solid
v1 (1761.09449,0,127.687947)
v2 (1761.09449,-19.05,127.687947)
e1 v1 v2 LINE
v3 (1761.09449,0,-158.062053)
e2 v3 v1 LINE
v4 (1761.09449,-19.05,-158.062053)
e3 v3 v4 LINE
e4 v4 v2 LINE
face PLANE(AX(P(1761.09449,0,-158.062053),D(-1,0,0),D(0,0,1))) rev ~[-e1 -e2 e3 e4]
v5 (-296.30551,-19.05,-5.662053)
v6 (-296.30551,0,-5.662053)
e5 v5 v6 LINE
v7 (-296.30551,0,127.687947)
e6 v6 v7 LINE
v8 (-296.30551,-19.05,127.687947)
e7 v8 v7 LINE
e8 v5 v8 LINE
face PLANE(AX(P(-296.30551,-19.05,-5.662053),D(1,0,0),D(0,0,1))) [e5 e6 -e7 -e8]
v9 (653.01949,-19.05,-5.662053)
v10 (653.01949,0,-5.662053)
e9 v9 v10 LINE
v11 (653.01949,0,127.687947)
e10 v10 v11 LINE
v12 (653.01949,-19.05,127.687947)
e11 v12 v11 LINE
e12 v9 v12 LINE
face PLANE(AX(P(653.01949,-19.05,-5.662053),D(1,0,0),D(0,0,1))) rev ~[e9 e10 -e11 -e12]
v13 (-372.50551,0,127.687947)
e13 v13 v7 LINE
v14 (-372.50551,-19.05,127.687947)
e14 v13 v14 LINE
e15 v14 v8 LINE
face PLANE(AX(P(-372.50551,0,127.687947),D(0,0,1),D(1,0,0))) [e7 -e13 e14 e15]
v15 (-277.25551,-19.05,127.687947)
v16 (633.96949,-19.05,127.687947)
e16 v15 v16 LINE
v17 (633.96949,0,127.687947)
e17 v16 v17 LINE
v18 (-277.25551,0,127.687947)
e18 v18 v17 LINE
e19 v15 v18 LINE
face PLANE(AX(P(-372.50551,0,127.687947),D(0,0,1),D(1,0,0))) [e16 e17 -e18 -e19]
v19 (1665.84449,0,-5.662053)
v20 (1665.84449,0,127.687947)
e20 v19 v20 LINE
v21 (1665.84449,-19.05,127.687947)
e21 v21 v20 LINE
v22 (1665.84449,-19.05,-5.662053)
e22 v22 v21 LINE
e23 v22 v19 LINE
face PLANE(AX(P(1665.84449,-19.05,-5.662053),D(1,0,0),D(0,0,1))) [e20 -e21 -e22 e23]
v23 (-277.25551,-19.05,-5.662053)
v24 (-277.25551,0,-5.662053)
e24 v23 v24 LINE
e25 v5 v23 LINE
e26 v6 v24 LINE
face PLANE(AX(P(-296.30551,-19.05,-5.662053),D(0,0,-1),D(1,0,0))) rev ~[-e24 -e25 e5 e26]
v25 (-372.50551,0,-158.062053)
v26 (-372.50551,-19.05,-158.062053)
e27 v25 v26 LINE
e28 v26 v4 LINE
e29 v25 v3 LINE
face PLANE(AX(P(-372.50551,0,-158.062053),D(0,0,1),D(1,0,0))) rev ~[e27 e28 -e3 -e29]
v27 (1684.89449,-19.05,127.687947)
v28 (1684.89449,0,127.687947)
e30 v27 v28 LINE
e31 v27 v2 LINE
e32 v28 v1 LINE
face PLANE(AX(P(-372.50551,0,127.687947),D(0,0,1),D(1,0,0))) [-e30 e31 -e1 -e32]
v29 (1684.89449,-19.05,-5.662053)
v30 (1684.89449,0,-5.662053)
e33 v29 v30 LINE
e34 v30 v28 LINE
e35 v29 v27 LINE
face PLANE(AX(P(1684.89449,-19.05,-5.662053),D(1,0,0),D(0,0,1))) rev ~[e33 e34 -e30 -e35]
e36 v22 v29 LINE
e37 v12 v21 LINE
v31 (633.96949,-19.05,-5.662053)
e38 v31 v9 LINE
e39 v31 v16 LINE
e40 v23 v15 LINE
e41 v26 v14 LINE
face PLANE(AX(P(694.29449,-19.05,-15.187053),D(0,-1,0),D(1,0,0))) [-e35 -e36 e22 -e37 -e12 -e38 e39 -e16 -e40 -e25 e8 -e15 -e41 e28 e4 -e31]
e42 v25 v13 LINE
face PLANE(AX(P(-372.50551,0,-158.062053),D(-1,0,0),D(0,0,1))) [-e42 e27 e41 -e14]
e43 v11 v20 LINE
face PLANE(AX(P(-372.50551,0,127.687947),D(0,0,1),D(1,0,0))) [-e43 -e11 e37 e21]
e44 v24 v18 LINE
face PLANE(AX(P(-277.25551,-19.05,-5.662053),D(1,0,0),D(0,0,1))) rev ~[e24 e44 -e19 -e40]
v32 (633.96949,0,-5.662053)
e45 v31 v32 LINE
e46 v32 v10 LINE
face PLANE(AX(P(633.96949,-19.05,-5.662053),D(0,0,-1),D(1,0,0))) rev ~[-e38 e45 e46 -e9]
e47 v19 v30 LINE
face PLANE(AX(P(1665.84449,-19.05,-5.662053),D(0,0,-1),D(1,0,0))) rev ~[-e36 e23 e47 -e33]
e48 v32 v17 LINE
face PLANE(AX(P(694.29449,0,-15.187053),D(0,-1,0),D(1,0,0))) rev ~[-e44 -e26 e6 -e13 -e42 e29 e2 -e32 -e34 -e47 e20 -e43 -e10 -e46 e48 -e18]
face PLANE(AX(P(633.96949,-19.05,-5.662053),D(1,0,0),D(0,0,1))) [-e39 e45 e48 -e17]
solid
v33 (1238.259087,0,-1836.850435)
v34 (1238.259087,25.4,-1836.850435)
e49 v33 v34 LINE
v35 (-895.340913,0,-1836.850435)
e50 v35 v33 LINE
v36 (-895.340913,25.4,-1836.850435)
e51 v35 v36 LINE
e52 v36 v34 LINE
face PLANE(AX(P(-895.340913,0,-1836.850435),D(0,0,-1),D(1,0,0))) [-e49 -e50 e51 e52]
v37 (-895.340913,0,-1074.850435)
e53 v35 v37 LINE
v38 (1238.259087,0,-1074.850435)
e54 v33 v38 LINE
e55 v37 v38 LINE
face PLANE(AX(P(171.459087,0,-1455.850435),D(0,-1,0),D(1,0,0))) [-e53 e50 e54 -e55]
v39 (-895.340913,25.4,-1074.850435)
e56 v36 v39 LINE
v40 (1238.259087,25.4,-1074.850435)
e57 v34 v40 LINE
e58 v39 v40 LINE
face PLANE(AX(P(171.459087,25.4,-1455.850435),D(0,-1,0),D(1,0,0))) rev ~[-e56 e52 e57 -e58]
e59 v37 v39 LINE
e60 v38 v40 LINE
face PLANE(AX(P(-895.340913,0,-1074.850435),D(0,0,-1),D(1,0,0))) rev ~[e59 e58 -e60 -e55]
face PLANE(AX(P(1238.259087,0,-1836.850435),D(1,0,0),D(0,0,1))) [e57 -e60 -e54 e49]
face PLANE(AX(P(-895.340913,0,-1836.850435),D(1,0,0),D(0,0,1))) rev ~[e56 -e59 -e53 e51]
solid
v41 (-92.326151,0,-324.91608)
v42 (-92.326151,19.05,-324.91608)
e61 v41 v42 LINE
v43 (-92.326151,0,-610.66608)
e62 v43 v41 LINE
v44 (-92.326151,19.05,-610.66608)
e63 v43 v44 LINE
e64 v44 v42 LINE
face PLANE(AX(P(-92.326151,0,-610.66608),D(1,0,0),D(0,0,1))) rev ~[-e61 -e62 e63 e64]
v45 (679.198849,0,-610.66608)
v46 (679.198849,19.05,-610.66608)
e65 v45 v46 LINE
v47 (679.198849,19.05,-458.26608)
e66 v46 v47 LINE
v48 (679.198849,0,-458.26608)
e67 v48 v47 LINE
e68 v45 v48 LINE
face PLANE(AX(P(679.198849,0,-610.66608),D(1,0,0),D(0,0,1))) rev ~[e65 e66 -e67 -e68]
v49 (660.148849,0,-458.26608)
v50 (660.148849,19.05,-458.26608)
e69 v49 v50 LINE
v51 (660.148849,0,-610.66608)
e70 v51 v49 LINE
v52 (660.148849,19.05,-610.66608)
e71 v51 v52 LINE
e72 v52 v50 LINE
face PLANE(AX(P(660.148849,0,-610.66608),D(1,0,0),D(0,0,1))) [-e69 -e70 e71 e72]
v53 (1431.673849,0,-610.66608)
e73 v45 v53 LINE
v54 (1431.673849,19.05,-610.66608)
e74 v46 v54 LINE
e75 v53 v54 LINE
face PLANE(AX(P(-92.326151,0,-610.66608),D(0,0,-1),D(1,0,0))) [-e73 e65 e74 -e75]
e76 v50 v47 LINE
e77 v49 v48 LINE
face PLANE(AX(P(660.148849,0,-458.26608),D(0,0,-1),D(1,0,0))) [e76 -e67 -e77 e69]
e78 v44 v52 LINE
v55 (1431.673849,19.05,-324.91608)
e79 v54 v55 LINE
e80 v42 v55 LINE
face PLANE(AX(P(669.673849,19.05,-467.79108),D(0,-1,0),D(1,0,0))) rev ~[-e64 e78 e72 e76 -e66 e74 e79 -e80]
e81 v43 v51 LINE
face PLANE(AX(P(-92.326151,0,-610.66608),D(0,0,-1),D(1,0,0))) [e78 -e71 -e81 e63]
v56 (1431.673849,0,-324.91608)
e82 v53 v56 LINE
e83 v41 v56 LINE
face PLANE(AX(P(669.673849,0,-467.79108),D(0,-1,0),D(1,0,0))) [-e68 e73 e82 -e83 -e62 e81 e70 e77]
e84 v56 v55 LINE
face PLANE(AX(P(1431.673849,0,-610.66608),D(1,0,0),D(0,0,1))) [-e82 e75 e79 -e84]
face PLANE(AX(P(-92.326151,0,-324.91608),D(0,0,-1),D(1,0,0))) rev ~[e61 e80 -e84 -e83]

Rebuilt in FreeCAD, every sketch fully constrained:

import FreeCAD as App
import Part
import Sketcher

V = App.Vector
Q = App.Units.Quantity


def add_polygon(sketch, points):
    """Adds a closed chain of lines whose ends are joined by coincident constraints."""
    first, n = sketch.GeometryCount, len(points)
    for a, b in zip(points, points[1:] + points[:1]):
        sketch.addGeometry(Part.LineSegment(App.Vector(*a, 0), App.Vector(*b, 0)), False)
    for i in range(n):
        sketch.addConstraint(Sketcher.Constraint("Coincident", first + i, 2, first + (i + 1) % n, 1))

doc = App.newDocument("Part")
params = doc.addObject("Spreadsheet::Sheet", "Params")
for row, (alias, value) in enumerate([
    ("sketch1_width", "84 in"),
    ("sketch1_height", "11.25 in"),
    ("pad1_length", "0.75 in"),
    ("sketch2_width", "0.75 in"),
    ("sketch2_height", "5.25 in"),
    ("sketch3_width", "60 in"),
    ("sketch3_height", "11.25 in"),
    ("pad2_length", "0.75 in"),
    ("sketch4_height", "6 in"),
    ("sketch4_width", "0.75 in"),
    ("sketch5_width", "84 in"),
    ("sketch5_height", "30 in"),
    ("pad3_length", "1 in"),
], start=1):
    params.set(f"A{row}", alias)
    params.set(f"B{row}", "=" + value)
    params.setAlias(f"B{row}", alias)

body = doc.addObject("PartDesign::Body", "Body")

# Sketch on XZ plane
sketch1 = body.newObject("Sketcher::SketchObject", "Sketch")
sketch1.AttachmentSupport = (doc.getObject("XZ_Plane"), [""])
sketch1.MapMode = "FlatFace"
add_polygon(sketch1, [(-373, 128), (-373, -158), (1761, -158), (1761, 128)])  # lines 0-3
sketch1.addConstraint([
    Sketcher.Constraint("Vertical", 0),
    Sketcher.Constraint("Horizontal", 1),
    Sketcher.Constraint("Vertical", 2),
    Sketcher.Constraint("Horizontal", 3),
    Sketcher.Constraint("DistanceX", 1, 1, 1, 2, Q("84 in")),
    Sketcher.Constraint("DistanceY", 0, 2, 0, 1, Q("11.25 in")),
    Sketcher.Constraint("DistanceX", 0, 2, -1, 1, Q("372.50551 mm")),
    Sketcher.Constraint("DistanceY", 0, 2, -1, 1, Q("158.062053 mm")),
])
sketch1.setExpression("Constraints[8]", "Params.sketch1_width")
sketch1.setExpression("Constraints[9]", "Params.sketch1_height")
pad1 = body.newObject("PartDesign::Pad", "Pad")
pad1.Profile = sketch1
pad1.setExpression("Length", "Params.pad1_length")

# Sketch on XZ plane
sketch2 = body.newObject("Sketcher::SketchObject", "Sketch001")
sketch2.AttachmentSupport = (doc.getObject("XZ_Plane"), [""])
sketch2.MapMode = "FlatFace"
sketch2.AttachmentOffset = App.Placement(V(0, 0, 0.75 * 25.4), App.Rotation())
add_polygon(sketch2, [(634, 128), (634, -6), (653, -6), (653, 128)])  # lines 0-3
add_polygon(sketch2, [(-296, 128), (-296, -6), (-277, -6), (-277, 128)])  # lines 4-7
add_polygon(sketch2, [(1666, 128), (1666, -6), (1685, -6), (1685, 128)])  # lines 8-11
sketch2.addConstraint([
    Sketcher.Constraint("Vertical", 0),
    Sketcher.Constraint("Horizontal", 1),
    Sketcher.Constraint("Vertical", 2),
    Sketcher.Constraint("Horizontal", 3),
    Sketcher.Constraint("Vertical", 4),
    Sketcher.Constraint("Horizontal", 5),
    Sketcher.Constraint("Vertical", 6),
    Sketcher.Constraint("Horizontal", 7),
    Sketcher.Constraint("Vertical", 8),
    Sketcher.Constraint("Horizontal", 9),
    Sketcher.Constraint("Vertical", 10),
    Sketcher.Constraint("Horizontal", 11),
    Sketcher.Constraint("Horizontal", 1, 2, 4, 2),
    Sketcher.Constraint("Horizontal", 3, 2, 6, 2),
    Sketcher.Constraint("Horizontal", 5, 2, 8, 2),
    Sketcher.Constraint("Horizontal", 7, 2, 10, 2),
    Sketcher.Constraint("Equal", 3, 5),
    Sketcher.Constraint("Equal", 7, 9),
    Sketcher.Constraint("DistanceX", 1, 1, 1, 2, Q("0.75 in")),
    Sketcher.Constraint("DistanceY", 0, 2, 0, 1, Q("5.25 in")),
    Sketcher.Constraint("DistanceX", 5, 2, 8, 2, Q("76.5 in")),
    Sketcher.Constraint("DistanceX", 4, 2, 0, 2, Q("36.625 in")),
    Sketcher.Constraint("DistanceX", -1, 1, 0, 2, Q("633.96949 mm")),
    Sketcher.Constraint("DistanceY", 0, 2, -1, 1, Q("5.662053 mm")),
])
sketch2.setExpression("Constraints[30]", "Params.sketch2_width")
sketch2.setExpression("Constraints[31]", "Params.sketch2_height")
pocket1 = body.newObject("PartDesign::Pocket", "Pocket")
pocket1.Profile = sketch2
pocket1.Type = "ThroughAll"
body2 = doc.addObject("PartDesign::Body", "Body001")

# Sketch on XZ plane
sketch3 = body2.newObject("Sketcher::SketchObject", "Sketch002")
sketch3.AttachmentSupport = (doc.getObject("XZ_Plane001"), [""])
sketch3.MapMode = "FlatFace"
add_polygon(sketch3, [(-92, -325), (-92, -611), (1432, -611), (1432, -325)])  # lines 0-3
sketch3.addConstraint([
    Sketcher.Constraint("Vertical", 0),
    Sketcher.Constraint("Horizontal", 1),
    Sketcher.Constraint("Vertical", 2),
    Sketcher.Constraint("Horizontal", 3),
    Sketcher.Constraint("DistanceX", 1, 1, 1, 2, Q("60 in")),
    Sketcher.Constraint("DistanceY", 0, 2, 0, 1, Q("11.25 in")),
    Sketcher.Constraint("DistanceX", 0, 2, -1, 1, Q("92.326151 mm")),
    Sketcher.Constraint("DistanceY", 0, 2, -1, 1, Q("610.66608 mm")),
])
sketch3.setExpression("Constraints[8]", "Params.sketch3_width")
sketch3.setExpression("Constraints[9]", "Params.sketch3_height")
pad2 = body2.newObject("PartDesign::Pad", "Pad001")
pad2.Profile = sketch3
pad2.setExpression("Length", "Params.pad2_length")
pad2.Reversed = True

# Sketch on XZ plane
sketch4 = body2.newObject("Sketcher::SketchObject", "Sketch003")
sketch4.AttachmentSupport = (doc.getObject("XZ_Plane001"), [""])
sketch4.MapMode = "FlatFace"
add_polygon(sketch4, [(660, -458), (660, -611), (679, -611), (679, -458)])  # lines 0-3
sketch4.addConstraint([
    Sketcher.Constraint("Vertical", 0),
    Sketcher.Constraint("Horizontal", 1),
    Sketcher.Constraint("Vertical", 2),
    Sketcher.Constraint("Horizontal", 3),
    Sketcher.Constraint("DistanceY", 0, 2, 0, 1, Q("6 in")),
    Sketcher.Constraint("DistanceX", 1, 1, 1, 2, Q("0.75 in")),
    Sketcher.Constraint("DistanceX", -1, 1, 0, 2, Q("660.148849 mm")),
    Sketcher.Constraint("DistanceY", 0, 2, -1, 1, Q("610.66608 mm")),
])
sketch4.setExpression("Constraints[8]", "Params.sketch4_height")
sketch4.setExpression("Constraints[9]", "Params.sketch4_width")
pocket2 = body2.newObject("PartDesign::Pocket", "Pocket001")
pocket2.Profile = sketch4
pocket2.Type = "ThroughAll"
body3 = doc.addObject("PartDesign::Body", "Body002")

# Sketch on XZ plane
sketch5 = body3.newObject("Sketcher::SketchObject", "Sketch004")
sketch5.AttachmentSupport = (doc.getObject("XZ_Plane002"), [""])
sketch5.MapMode = "FlatFace"
add_polygon(sketch5, [(-895, -1075), (-895, -1837), (1238, -1837), (1238, -1075)])  # lines 0-3
sketch5.addConstraint([
    Sketcher.Constraint("Vertical", 0),
    Sketcher.Constraint("Horizontal", 1),
    Sketcher.Constraint("Vertical", 2),
    Sketcher.Constraint("Horizontal", 3),
    Sketcher.Constraint("DistanceX", 1, 1, 1, 2, Q("84 in")),
    Sketcher.Constraint("DistanceY", 0, 2, 0, 1, Q("30 in")),
    Sketcher.Constraint("DistanceX", 0, 2, -1, 1, Q("895.340913 mm")),
    Sketcher.Constraint("DistanceY", 0, 2, -1, 1, Q("1836.850435 mm")),
])
sketch5.setExpression("Constraints[8]", "Params.sketch5_width")
sketch5.setExpression("Constraints[9]", "Params.sketch5_height")
pad3 = body3.newObject("PartDesign::Pad", "Pad002")
pad3.Profile = sketch5
pad3.setExpression("Length", "Params.pad3_length")
pad3.Reversed = True

doc.recompute()
